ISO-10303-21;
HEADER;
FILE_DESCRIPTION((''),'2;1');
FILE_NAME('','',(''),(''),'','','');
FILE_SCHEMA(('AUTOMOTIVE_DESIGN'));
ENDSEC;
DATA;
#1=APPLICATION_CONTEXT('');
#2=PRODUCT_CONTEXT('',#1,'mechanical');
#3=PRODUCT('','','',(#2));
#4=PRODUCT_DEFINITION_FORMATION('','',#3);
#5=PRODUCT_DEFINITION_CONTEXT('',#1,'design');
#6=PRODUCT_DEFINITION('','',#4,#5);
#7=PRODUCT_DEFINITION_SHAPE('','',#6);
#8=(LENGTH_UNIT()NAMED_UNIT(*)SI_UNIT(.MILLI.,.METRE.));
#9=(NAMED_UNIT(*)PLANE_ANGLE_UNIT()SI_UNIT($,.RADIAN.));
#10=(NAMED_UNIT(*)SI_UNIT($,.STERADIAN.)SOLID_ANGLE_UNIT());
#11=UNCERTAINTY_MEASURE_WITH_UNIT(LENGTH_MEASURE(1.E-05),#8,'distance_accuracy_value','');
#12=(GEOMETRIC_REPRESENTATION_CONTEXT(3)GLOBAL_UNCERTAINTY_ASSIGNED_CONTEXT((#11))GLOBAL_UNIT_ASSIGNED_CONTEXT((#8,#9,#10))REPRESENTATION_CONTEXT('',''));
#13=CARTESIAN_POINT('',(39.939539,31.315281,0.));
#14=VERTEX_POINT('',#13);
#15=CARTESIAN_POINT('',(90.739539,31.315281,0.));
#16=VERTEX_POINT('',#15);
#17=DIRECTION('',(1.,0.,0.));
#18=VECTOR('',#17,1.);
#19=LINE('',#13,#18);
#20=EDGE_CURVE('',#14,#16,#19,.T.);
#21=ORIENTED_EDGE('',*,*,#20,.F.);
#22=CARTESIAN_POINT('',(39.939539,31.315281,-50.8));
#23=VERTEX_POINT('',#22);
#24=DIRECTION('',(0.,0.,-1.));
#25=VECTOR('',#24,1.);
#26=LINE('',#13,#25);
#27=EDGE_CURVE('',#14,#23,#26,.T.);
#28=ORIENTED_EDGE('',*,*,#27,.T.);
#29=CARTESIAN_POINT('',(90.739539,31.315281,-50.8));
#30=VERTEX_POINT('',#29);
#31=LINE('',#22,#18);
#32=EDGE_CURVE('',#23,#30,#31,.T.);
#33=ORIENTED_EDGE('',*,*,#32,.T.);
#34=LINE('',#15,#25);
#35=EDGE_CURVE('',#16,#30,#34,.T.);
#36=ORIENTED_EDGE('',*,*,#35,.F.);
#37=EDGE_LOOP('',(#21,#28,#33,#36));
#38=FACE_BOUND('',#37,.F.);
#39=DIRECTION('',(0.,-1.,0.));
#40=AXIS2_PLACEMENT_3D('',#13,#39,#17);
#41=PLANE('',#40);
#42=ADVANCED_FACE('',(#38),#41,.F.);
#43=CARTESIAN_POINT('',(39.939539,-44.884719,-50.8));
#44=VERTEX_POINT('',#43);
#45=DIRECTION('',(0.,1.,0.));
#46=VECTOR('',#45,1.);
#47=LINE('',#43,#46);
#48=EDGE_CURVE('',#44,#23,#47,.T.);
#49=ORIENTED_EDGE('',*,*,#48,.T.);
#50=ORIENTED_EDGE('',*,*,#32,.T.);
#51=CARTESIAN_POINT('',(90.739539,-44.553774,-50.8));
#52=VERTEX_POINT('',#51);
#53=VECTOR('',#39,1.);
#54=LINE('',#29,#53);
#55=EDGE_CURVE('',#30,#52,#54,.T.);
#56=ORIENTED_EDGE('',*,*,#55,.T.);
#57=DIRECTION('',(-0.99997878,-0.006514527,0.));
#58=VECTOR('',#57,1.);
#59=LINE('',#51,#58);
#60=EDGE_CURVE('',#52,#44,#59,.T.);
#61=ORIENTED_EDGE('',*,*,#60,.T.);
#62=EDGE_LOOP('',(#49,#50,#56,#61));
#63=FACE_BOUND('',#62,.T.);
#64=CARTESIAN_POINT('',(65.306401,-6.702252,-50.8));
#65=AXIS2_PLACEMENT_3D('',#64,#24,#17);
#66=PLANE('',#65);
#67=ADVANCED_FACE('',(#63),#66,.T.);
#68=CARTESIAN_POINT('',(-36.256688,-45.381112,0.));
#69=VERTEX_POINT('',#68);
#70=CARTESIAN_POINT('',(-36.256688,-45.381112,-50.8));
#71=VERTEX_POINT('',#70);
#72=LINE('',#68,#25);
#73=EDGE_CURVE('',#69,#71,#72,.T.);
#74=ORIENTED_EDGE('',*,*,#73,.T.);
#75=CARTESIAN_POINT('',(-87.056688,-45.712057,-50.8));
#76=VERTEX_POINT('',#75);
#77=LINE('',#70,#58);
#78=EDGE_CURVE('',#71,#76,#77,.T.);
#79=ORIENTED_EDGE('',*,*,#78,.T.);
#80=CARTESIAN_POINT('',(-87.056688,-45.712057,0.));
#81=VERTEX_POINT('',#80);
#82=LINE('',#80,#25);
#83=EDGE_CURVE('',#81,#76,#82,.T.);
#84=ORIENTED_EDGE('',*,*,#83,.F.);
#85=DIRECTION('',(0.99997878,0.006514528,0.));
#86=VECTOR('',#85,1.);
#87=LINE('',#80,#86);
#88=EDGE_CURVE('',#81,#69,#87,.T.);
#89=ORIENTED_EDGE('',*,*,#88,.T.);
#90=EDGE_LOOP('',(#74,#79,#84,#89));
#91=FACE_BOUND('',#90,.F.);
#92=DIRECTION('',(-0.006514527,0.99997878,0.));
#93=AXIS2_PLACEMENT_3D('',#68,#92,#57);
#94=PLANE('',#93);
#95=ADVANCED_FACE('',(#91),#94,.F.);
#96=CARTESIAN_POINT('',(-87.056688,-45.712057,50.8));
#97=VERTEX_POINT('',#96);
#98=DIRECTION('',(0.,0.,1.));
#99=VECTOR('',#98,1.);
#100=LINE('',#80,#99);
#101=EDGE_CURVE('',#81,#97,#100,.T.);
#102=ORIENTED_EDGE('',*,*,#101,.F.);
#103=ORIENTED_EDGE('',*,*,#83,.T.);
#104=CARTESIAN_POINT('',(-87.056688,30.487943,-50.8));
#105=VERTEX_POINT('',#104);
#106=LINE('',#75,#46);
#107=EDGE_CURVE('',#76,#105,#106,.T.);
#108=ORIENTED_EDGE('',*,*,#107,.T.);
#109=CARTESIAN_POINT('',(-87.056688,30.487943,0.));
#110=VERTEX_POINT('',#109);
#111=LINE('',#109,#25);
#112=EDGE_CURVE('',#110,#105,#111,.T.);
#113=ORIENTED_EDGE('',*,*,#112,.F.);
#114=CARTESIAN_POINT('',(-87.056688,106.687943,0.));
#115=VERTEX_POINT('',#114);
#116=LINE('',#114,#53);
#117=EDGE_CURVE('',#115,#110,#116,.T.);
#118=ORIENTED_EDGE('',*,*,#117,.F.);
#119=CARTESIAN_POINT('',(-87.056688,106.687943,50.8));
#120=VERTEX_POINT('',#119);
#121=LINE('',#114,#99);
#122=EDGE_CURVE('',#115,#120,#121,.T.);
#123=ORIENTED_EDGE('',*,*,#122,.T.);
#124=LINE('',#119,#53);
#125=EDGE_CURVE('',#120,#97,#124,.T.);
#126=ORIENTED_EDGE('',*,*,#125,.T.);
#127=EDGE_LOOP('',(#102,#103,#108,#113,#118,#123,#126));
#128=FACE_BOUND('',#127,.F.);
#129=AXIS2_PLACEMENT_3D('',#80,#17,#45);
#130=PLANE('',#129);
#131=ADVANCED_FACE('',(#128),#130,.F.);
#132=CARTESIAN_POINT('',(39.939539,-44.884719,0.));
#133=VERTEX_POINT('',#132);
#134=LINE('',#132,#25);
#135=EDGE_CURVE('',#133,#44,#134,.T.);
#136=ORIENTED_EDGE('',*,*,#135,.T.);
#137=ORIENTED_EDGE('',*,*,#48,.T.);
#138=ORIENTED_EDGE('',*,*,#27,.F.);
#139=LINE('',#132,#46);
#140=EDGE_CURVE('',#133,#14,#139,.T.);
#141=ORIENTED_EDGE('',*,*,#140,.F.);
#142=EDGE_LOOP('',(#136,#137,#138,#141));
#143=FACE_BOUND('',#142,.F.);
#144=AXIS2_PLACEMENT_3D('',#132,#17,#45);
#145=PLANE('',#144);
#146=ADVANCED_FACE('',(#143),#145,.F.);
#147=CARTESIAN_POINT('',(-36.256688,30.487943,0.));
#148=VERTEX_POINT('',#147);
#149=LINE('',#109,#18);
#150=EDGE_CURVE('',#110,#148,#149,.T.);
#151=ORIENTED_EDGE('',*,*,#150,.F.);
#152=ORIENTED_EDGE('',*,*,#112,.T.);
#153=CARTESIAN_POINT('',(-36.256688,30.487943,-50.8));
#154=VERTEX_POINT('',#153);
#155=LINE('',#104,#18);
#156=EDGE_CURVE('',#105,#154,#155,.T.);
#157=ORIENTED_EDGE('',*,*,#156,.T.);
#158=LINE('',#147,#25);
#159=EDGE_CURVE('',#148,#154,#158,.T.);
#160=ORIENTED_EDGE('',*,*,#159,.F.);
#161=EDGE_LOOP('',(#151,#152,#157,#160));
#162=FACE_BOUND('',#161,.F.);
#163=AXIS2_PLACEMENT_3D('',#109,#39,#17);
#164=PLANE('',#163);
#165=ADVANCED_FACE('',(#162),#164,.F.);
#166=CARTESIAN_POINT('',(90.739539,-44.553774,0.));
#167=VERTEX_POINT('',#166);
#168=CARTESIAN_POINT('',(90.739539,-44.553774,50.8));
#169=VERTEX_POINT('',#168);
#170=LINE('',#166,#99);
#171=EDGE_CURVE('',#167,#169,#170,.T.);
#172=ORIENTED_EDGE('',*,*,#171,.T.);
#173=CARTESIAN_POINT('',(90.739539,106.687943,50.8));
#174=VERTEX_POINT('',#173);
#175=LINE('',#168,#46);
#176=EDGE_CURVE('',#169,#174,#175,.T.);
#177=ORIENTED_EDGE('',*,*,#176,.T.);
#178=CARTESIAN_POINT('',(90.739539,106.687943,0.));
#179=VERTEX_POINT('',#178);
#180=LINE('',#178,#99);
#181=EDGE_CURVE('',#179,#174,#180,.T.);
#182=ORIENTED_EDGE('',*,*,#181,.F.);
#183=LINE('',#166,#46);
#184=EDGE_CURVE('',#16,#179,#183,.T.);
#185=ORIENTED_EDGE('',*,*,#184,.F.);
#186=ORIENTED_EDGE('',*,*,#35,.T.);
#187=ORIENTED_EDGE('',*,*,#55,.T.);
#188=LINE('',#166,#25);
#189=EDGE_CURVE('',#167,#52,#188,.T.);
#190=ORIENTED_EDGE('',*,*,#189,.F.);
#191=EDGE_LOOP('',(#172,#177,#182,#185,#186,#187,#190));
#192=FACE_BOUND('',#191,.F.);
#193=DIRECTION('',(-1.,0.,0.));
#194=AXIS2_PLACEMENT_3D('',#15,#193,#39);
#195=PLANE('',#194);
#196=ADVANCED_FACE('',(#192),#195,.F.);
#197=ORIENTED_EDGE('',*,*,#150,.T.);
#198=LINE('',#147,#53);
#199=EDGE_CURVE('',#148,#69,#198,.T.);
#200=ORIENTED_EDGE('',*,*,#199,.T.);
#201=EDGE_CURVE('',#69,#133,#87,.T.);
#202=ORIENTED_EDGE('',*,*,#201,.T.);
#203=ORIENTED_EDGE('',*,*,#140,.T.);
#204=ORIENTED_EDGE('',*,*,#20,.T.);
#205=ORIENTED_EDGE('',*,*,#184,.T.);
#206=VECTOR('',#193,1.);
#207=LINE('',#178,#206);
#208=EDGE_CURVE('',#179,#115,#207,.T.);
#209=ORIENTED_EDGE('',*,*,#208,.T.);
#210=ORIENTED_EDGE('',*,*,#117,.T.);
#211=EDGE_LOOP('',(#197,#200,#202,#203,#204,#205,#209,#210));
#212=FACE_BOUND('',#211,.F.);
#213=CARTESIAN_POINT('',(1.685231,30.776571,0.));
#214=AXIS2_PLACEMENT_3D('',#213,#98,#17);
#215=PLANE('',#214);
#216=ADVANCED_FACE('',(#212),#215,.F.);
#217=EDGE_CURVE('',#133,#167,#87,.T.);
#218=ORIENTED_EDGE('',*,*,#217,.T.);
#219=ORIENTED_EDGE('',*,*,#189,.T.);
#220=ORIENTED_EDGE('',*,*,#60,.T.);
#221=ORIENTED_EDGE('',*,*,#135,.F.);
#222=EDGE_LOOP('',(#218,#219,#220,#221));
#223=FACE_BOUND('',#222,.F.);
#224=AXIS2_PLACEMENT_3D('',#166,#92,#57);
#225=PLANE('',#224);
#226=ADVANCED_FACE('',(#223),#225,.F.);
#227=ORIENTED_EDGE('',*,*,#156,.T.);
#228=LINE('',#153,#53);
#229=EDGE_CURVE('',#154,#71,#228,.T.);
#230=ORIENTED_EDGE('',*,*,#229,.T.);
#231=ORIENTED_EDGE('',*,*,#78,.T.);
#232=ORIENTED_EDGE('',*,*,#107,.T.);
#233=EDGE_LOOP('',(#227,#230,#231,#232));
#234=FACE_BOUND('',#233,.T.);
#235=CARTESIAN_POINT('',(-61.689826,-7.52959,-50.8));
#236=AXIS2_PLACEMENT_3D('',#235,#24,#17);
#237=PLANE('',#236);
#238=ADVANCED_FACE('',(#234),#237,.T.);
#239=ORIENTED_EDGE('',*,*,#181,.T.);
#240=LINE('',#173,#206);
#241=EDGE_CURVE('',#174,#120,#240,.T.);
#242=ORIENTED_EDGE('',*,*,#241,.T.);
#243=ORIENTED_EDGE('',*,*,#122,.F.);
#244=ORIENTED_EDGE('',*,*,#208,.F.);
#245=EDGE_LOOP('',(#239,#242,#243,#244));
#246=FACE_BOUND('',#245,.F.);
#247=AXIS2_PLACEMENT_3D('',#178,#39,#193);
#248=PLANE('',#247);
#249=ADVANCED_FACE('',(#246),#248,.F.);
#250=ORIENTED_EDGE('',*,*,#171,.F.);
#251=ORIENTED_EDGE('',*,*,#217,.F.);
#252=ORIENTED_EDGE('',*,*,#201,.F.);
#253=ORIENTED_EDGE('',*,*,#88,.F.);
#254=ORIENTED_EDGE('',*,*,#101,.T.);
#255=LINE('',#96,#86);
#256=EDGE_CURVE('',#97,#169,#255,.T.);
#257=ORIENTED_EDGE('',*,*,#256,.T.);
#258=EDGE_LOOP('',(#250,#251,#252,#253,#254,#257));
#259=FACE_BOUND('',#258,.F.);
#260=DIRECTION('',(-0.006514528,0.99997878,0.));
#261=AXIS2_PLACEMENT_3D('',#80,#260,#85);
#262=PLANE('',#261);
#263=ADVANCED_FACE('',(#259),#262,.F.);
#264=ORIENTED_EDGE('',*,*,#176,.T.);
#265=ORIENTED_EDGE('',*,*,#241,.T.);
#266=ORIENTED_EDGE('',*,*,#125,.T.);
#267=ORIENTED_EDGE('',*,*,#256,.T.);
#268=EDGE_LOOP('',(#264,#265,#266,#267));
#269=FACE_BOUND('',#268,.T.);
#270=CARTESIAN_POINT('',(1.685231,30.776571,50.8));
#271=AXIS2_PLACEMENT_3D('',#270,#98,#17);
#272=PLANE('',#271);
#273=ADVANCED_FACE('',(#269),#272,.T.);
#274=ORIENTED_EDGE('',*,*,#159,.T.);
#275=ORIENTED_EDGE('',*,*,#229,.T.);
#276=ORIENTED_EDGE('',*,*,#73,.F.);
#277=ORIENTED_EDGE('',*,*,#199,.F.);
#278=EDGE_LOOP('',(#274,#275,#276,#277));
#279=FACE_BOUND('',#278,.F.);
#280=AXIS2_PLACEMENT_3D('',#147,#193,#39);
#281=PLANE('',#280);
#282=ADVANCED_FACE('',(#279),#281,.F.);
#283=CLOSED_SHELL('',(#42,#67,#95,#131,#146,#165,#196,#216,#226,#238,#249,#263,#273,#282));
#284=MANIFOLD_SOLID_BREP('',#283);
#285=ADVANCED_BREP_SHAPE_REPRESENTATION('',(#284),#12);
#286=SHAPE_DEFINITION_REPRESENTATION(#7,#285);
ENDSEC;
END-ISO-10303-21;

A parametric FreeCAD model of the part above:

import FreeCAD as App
import Part
import Sketcher

V = App.Vector
Q = App.Units.Quantity

doc = App.newDocument("Part")
body = doc.addObject("PartDesign::Body", "Body")

sketch1 = body.newObject("Sketcher::SketchObject", "Sketch")
sketch1.AttachmentSupport = (doc.getObject("XY_Plane"), [""])
sketch1.MapMode = "FlatFace"
sketch1.addGeometry([
    Part.LineSegment(V(-87, 107, 0), V(-87, -46, 0)),
    Part.LineSegment(V(-87, -46, 0), V(91, -45, 0)),
    Part.LineSegment(V(91, -45, 0), V(91, 107, 0)),
    Part.LineSegment(V(91, 107, 0), V(-87, 107, 0)),
], False)
sketch1.addConstraint([
    Sketcher.Constraint("Coincident", 0, 2, 1, 1),
    Sketcher.Constraint("Coincident", 1, 2, 2, 1),
    Sketcher.Constraint("Coincident", 2, 2, 3, 1),
    Sketcher.Constraint("Coincident", 3, 2, 0, 1),
    Sketcher.Constraint("Vertical", 0),
    Sketcher.Constraint("Vertical", 2),
    Sketcher.Constraint("Horizontal", 3),
    Sketcher.Constraint("DistanceY", 0, 2, 0, 1, Q("6 in")),
    Sketcher.Constraint("Distance", 1, Q("7 in")),
    Sketcher.Constraint("DistanceX", 3, 2, 3, 1, 177.796227),
    Sketcher.Constraint("DistanceX", -1, 1, 1, 2, 90.739539),
    Sketcher.Constraint("DistanceY", 0, 2, -1, 1, 45.712057),
])
pad1 = body.newObject("PartDesign::Pad", "Pad")
pad1.Profile = sketch1
pad1.Length = Q("2 in")

sketch2 = body.newObject("Sketcher::SketchObject", "Sketch001")
sketch2.AttachmentSupport = (doc.getObject("XY_Plane"), [""])
sketch2.MapMode = "FlatFace"
sketch2.addGeometry([
    Part.LineSegment(V(-36, -45, 0), V(-87, -46, 0)),
    Part.LineSegment(V(-87, -46, 0), V(-87, 30, 0)),
    Part.LineSegment(V(-87, 30, 0), V(-36, 30, 0)),
    Part.LineSegment(V(-36, 30, 0), V(-36, -45, 0)),
], False)
sketch2.addConstraint([
    Sketcher.Constraint("Coincident", 0, 2, 1, 1),
    Sketcher.Constraint("Coincident", 1, 2, 2, 1),
    Sketcher.Constraint("Coincident", 2, 2, 3, 1),
    Sketcher.Constraint("Coincident", 3, 2, 0, 1),
    Sketcher.Constraint("Vertical", 1),
    Sketcher.Constraint("Horizontal", 2),
    Sketcher.Constraint("Vertical", 3),
    Sketcher.Constraint("DistanceX", 2, 1, 2, 2, Q("2 in")),
    Sketcher.Constraint("DistanceY", 1, 1, 1, 2, Q("3 in")),
    Sketcher.Constraint("DistanceY", 3, 2, 3, 1, 75.869055),
    Sketcher.Constraint("DistanceX", 0, 2, -1, 1, 87.056688),
    Sketcher.Constraint("DistanceY", 0, 2, -1, 1, 45.712057),
])
pad2 = body.newObject("PartDesign::Pad", "Pad001")
pad2.Profile = sketch2
pad2.Length = Q("2 in")
pad2.Reversed = True

sketch3 = body.newObject("Sketcher::SketchObject", "Sketch002")
sketch3.AttachmentSupport = (doc.getObject("XY_Plane"), [""])
sketch3.MapMode = "FlatFace"
sketch3.addGeometry([
    Part.LineSegment(V(91, -45, 0), V(40, -45, 0)),
    Part.LineSegment(V(40, -45, 0), V(40, 31, 0)),
    Part.LineSegment(V(40, 31, 0), V(91, 31, 0)),
    Part.LineSegment(V(91, 31, 0), V(91, -45, 0)),
], False)
sketch3.addConstraint([
    Sketcher.Constraint("Coincident", 0, 2, 1, 1),
    Sketcher.Constraint("Coincident", 1, 2, 2, 1),
    Sketcher.Constraint("Coincident", 2, 2, 3, 1),
    Sketcher.Constraint("Coincident", 3, 2, 0, 1),
    Sketcher.Constraint("Vertical", 1),
    Sketcher.Constraint("Horizontal", 2),
    Sketcher.Constraint("Vertical", 3),
    Sketcher.Constraint("DistanceX", 2, 1, 2, 2, Q("2 in")),
    Sketcher.Constraint("DistanceY", 1, 1, 1, 2, Q("3 in")),
    Sketcher.Constraint("DistanceY", 3, 2, 3, 1, 75.869055),
    Sketcher.Constraint("DistanceX", -1, 1, 0, 2, 39.939539),
    Sketcher.Constraint("DistanceY", 0, 2, -1, 1, 44.884719),
])
pad3 = body.newObject("PartDesign::Pad", "Pad002")
pad3.Profile = sketch3
pad3.Length = Q("2 in")
pad3.Reversed = True

doc.recompute()
